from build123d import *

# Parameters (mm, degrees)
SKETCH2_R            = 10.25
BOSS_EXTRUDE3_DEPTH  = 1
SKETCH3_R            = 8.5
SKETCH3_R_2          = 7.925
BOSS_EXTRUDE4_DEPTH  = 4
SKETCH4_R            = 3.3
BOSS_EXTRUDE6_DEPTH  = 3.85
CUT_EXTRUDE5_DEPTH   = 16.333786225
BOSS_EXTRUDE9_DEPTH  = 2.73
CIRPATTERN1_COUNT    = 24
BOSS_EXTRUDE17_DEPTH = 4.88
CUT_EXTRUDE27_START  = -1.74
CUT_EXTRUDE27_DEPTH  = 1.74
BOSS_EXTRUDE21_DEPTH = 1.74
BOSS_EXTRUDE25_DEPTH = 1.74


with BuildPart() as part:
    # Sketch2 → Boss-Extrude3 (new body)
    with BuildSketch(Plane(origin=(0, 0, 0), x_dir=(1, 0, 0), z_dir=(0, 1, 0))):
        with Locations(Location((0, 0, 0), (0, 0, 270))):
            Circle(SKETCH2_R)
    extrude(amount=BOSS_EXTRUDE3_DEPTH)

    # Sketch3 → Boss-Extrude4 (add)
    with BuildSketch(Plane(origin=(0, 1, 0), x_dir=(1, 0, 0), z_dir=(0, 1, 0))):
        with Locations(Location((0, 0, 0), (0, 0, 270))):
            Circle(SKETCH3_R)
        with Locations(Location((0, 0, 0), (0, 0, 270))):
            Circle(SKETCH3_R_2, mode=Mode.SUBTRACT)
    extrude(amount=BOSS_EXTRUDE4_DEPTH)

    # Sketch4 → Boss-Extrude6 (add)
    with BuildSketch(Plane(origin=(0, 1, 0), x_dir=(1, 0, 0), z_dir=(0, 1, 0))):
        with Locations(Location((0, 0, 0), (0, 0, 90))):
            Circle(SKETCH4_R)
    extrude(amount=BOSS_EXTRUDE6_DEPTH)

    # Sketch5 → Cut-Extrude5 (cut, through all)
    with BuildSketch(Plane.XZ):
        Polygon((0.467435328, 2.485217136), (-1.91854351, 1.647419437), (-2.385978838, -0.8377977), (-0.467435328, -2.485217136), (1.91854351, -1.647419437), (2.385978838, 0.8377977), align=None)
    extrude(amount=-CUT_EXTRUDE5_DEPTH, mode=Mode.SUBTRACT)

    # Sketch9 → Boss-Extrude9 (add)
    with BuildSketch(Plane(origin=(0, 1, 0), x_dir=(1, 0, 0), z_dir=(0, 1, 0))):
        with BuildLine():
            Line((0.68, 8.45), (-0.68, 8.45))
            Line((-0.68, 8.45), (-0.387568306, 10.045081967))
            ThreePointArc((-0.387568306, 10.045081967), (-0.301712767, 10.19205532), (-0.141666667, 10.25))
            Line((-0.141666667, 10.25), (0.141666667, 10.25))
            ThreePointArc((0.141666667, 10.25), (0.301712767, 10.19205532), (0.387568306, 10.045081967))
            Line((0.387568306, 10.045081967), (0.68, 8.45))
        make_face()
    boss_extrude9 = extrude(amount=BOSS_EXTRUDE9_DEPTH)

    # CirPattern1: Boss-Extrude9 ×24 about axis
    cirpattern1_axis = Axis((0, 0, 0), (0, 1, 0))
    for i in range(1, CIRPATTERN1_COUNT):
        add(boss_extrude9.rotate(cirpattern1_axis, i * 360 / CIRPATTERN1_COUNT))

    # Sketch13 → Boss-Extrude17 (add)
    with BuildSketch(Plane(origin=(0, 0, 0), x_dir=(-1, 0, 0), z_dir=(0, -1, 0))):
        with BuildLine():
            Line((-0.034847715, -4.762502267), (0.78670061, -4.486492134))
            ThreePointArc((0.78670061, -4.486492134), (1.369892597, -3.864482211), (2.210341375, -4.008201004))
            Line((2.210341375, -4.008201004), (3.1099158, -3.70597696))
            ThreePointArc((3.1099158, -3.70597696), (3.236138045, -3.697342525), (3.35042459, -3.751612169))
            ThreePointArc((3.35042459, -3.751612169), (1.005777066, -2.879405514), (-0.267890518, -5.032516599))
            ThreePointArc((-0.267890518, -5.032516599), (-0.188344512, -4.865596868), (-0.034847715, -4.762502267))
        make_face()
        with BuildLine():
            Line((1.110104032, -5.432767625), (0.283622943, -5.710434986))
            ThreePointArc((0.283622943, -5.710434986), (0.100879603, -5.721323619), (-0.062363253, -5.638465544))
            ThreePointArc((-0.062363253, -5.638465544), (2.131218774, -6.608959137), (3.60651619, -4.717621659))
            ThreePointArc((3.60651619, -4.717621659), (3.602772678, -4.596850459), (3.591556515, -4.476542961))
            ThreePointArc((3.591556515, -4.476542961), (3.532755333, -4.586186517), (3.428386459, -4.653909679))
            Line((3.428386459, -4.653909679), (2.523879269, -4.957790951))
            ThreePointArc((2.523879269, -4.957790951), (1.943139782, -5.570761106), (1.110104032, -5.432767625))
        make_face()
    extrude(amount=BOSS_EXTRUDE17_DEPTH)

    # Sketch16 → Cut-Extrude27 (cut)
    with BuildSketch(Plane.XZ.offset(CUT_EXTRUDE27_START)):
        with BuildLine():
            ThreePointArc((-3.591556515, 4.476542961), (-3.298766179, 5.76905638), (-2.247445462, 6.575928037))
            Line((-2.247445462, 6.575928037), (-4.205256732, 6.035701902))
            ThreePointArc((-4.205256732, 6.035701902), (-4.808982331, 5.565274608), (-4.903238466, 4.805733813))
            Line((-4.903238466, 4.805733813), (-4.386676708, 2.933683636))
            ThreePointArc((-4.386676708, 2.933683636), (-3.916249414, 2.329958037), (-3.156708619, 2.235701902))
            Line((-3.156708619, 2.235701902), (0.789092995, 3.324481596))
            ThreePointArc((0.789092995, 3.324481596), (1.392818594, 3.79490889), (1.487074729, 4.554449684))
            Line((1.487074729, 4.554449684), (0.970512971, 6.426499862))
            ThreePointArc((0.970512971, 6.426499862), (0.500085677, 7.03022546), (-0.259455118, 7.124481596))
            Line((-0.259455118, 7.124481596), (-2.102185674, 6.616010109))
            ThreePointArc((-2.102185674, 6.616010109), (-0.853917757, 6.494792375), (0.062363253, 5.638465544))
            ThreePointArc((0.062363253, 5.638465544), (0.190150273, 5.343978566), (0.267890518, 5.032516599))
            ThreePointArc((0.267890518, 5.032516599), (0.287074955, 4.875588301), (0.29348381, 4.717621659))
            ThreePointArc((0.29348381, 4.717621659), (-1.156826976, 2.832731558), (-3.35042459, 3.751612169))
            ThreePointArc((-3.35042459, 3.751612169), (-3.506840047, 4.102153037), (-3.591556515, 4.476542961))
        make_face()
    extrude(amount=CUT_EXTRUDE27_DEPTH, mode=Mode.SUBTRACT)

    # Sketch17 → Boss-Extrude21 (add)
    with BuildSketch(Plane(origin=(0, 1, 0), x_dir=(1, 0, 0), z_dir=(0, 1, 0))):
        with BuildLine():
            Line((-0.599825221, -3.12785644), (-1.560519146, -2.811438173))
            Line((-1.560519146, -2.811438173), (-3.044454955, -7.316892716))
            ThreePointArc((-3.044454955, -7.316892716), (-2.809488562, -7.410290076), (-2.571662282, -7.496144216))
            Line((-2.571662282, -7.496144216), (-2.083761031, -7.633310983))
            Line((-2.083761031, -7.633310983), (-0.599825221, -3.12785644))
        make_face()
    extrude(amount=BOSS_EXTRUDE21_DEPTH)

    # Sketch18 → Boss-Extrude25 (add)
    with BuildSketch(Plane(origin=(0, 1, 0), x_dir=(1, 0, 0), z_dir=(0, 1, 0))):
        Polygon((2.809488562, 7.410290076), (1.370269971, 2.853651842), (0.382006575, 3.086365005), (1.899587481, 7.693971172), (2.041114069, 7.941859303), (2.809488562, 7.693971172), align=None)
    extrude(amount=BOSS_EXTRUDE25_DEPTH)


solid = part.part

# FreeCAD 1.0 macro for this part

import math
import FreeCAD as App
import Part
import Sketcher
Q = App.Units.Quantity


def add_polygon(sketch, points):
    """Adds a closed chain of lines whose ends are joined by coincident constraints."""
    first, n = sketch.GeometryCount, len(points)
    for a, b in zip(points, points[1:] + points[:1]):
        sketch.addGeometry(Part.LineSegment(App.Vector(*a, 0), App.Vector(*b, 0)), False)
    for i in range(n):
        sketch.addConstraint(Sketcher.Constraint("Coincident", first + i, 2, first + (i + 1) % n, 1))

doc = App.newDocument("Part")
body = doc.addObject("PartDesign::Body", "Body")

# Sketch on XZ plane
sketch1 = body.newObject("Sketcher::SketchObject", "Sketch")
sketch1.AttachmentSupport = (doc.getObject("XZ_Plane"), [""])
sketch1.MapMode = "FlatFace"
sketch1.addGeometry(Part.Circle(App.Vector(0, 0, 0), App.Vector(0, 0, 1), 10.25), False)
sketch1.addConstraint([
    Sketcher.Constraint("Coincident", 0, 3, -1, 1),
    Sketcher.Constraint("Diameter", 0, Q("20.5 mm")),
])
pad1 = body.newObject("PartDesign::Pad", "Pad")
pad1.Profile = sketch1
pad1.Length = 1
pad1.Reversed = True

# Sketch on XZ plane
sketch2 = body.newObject("Sketcher::SketchObject", "Sketch001")
sketch2.AttachmentSupport = (doc.getObject("XZ_Plane"), [""])
sketch2.MapMode = "FlatFace"
sketch2.AttachmentOffset = App.Placement(App.Vector(0, 0, -1), App.Rotation())
sketch2.addGeometry([
    Part.Circle(App.Vector(0, 0, 0), App.Vector(0, 0, 1), 8.5),
    Part.Circle(App.Vector(0, 0, 0), App.Vector(0, 0, 1), 7.925),
], False)
sketch2.addConstraint([
    Sketcher.Constraint("Coincident", 0, 3, -1, 1),
    Sketcher.Constraint("Coincident", 1, 3, -1, 1),
    Sketcher.Constraint("Diameter", 0, Q("17 mm")),
    Sketcher.Constraint("Diameter", 1, Q("15.85 mm")),
])
pad2 = body.newObject("PartDesign::Pad", "Pad001")
pad2.Profile = sketch2
pad2.Length = 4
pad2.Reversed = True

# Sketch on XZ plane
sketch3 = body.newObject("Sketcher::SketchObject", "Sketch002")
sketch3.AttachmentSupport = (doc.getObject("XZ_Plane"), [""])
sketch3.MapMode = "FlatFace"
sketch3.AttachmentOffset = App.Placement(App.Vector(0, 0, -1), App.Rotation())
sketch3.addGeometry(Part.Circle(App.Vector(0, 0, 0), App.Vector(0, 0, 1), 3.3), False)
sketch3.addConstraint([
    Sketcher.Constraint("Coincident", 0, 3, -1, 1),
    Sketcher.Constraint("Diameter", 0, Q("6.6 mm")),
])
pad3 = body.newObject("PartDesign::Pad", "Pad002")
pad3.Profile = sketch3
pad3.Length = 3.85
pad3.Reversed = True

# Sketch on XZ plane
sketch4 = body.newObject("Sketcher::SketchObject", "Sketch003")
sketch4.AttachmentSupport = (doc.getObject("XZ_Plane"), [""])
sketch4.MapMode = "FlatFace"
add_polygon(sketch4, [(0.467435, 2.485217), (-1.918544, 1.647419), (-2.385979, -0.837798), (-0.467435, -2.485217), (1.918544, -1.647419), (2.385979, 0.837798)])  # lines 0-5
sketch4.addConstraint([
    Sketcher.Constraint("Symmetric", 0, 2, 3, 2, -1, 1),
    Sketcher.Constraint("Symmetric", 1, 2, 4, 2, -1, 1),
    Sketcher.Constraint("Symmetric", 2, 2, 5, 2, -1, 1),
    Sketcher.Constraint("Equal", 0, 1),
    Sketcher.Constraint("Equal", 1, 2),
    Sketcher.Constraint("DistanceY", -1, 1, 0, 2, Q("1.647419 mm")),
    Sketcher.Constraint("DistanceX", 1, 2, -1, 1, Q("2.385979 mm")),
    Sketcher.Constraint("DistanceY", 2, 2, 1, 2, Q("1.647419 mm")),
    Sketcher.Constraint("DistanceX", 0, 2, 2, 2, Q("1.451108 mm")),
])
pocket1 = body.newObject("PartDesign::Pocket", "Pocket")
pocket1.Profile = sketch4
pocket1.Type = "ThroughAll"

# Sketch on XZ plane
sketch5 = body.newObject("Sketcher::SketchObject", "Sketch004")
sketch5.AttachmentSupport = (doc.getObject("XZ_Plane"), [""])
sketch5.MapMode = "FlatFace"
sketch5.AttachmentOffset = App.Placement(App.Vector(0, 0, -1), App.Rotation())
sketch5.addGeometry([
    Part.LineSegment(App.Vector(-0.68, -8.45, 0), App.Vector(0.68, -8.45, 0)),  # 0
    Part.LineSegment(App.Vector(0.68, -8.45, 0), App.Vector(0.387568, -10.045082, 0)),  # 1
    Part.ArcOfCircle(Part.Circle(App.Vector(0.141667, -10, 0), App.Vector(0, 0, 1), 0.25), math.radians(-90), math.radians(-10.388858)),  # 2
    Part.LineSegment(App.Vector(0.141667, -10.25, 0), App.Vector(-0.141667, -10.25, 0)),  # 3
    Part.ArcOfCircle(Part.Circle(App.Vector(-0.141667, -10, 0), App.Vector(0, 0, 1), 0.25), math.radians(-169.611142), math.radians(-90)),  # 4
    Part.LineSegment(App.Vector(-0.387568, -10.045082, 0), App.Vector(-0.68, -8.45, 0)),  # 5
], False)
sketch5.addConstraint([
    Sketcher.Constraint("Coincident", 0, 2, 1, 1),
    Sketcher.Constraint("Tangent", 1, 2, 2, 2),
    Sketcher.Constraint("Tangent", 2, 1, 3, 1),
    Sketcher.Constraint("Tangent", 3, 2, 4, 2),
    Sketcher.Constraint("Tangent", 4, 1, 5, 1),
    Sketcher.Constraint("Coincident", 5, 2, 0, 1),
    Sketcher.Constraint("Horizontal", 0),
    Sketcher.Constraint("Horizontal", 3),
    Sketcher.Constraint("Equal", 2, 4),
    Sketcher.Constraint("Symmetric", 1, 2, 4, 1, -2),
    Sketcher.Constraint("Radius", 2, Q("0.25 mm")),
    Sketcher.Constraint("DistanceY", 2, 3, -1, 1, Q("10 mm")),
    Sketcher.Constraint("DistanceX", 0, 1, 0, 2, Q("1.36 mm")),
    Sketcher.Constraint("DistanceY", 2, 1, 0, 2, Q("1.8 mm")),
    Sketcher.Constraint("DistanceX", 2, 3, 1, 2, Q("0.245902 mm")),
])
pad4 = body.newObject("PartDesign::Pad", "Pad003")
pad4.Profile = sketch5
pad4.Length = 2.73
pad4.Reversed = True
doc.recompute()

polarpattern = body.newObject("PartDesign::PolarPattern", "PolarPattern")
polarpattern.Originals = [pad4]
polarpattern.Axis = (doc.getObject("Y_Axis"), [""])
polarpattern.Angle = 360
polarpattern.Occurrences = 24
body.Tip = polarpattern

# Sketch on XZ plane
sketch6 = body.newObject("Sketcher::SketchObject", "Sketch005")
sketch6.AttachmentSupport = (doc.getObject("XZ_Plane"), [""])
sketch6.MapMode = "FlatFace"
sketch6.addGeometry([
    Part.LineSegment(App.Vector(0.034848, 4.762502, 0), App.Vector(-0.786701, 4.486492, 0)),  # 0
    Part.ArcOfCircle(Part.Circle(App.Vector(-1.656516, 4.717622, 0), App.Vector(0, 0, 1), 0.9), math.radians(-127.978179), math.radians(-14.880897)),  # 1
    Part.LineSegment(App.Vector(-2.210341, 4.008201, 0), App.Vector(-3.109916, 3.705977, 0)),  # 2
    Part.ArcOfCircle(Part.Circle(App.Vector(-3.189533, 3.94296, 0), App.Vector(0, 0, 1), 0.25), math.radians(-130.058131), math.radians(-71.429539)),  # 3
    Part.ArcOfCircle(Part.Circle(App.Vector(-1.656516, 4.717622, 0), App.Vector(0, 0, 1), 1.95), math.radians(-150.304564), math.radians(9.293077)),  # 4
    Part.ArcOfCircle(Part.Circle(App.Vector(-0.076617, 5.094279, 0), App.Vector(0, 0, 1), 0.35), math.radians(-71.429538), math.radians(-10.163819)),  # 5
    Part.LineSegment(App.Vector(-1.110104, 5.432768, 0), App.Vector(-0.283623, 5.710435, 0)),  # 6
    Part.ArcOfCircle(Part.Circle(App.Vector(-0.172158, 5.378659, 0), App.Vector(0, 0, 1), 0.35), math.radians(47.928201), math.radians(108.570462)),  # 7
    Part.ArcOfCircle(Part.Circle(App.Vector(-1.656516, 4.717622, 0), App.Vector(0, 0, 1), 1.95), math.radians(28.178994), math.radians(180)),  # 8
    Part.ArcOfCircle(Part.Circle(App.Vector(-1.656516, 4.717622, 0), App.Vector(0, 0, 1), 1.95), math.radians(180), math.radians(187.101653)),  # 9
    Part.ArcOfCircle(Part.Circle(App.Vector(-3.348769, 4.416927, 0), App.Vector(0, 0, 1), 0.25), math.radians(108.570462), math.radians(166.203989)),  # 10
    Part.LineSegment(App.Vector(-3.428386, 4.65391, 0), App.Vector(-2.523879, 4.957791, 0)),  # 11
    Part.ArcOfCircle(Part.Circle(App.Vector(-1.656516, 4.717622, 0), App.Vector(0, 0, 1), 0.9), math.radians(52.618117), math.radians(164.522807)),  # 12
], False)
sketch6.addConstraint([
    Sketcher.Constraint("Coincident", 0, 2, 1, 2),
    Sketcher.Constraint("Coincident", 1, 1, 2, 1),
    Sketcher.Constraint("Tangent", 2, 2, 3, 2),
    Sketcher.Constraint("Coincident", 3, 1, 4, 1),
    Sketcher.Constraint("Coincident", 4, 2, 5, 2),
    Sketcher.Constraint("Tangent", 5, 1, 0, 1),
    Sketcher.Constraint("Tangent", 6, 2, 7, 2),
    Sketcher.Constraint("Coincident", 7, 1, 8, 1),
    Sketcher.Constraint("Tangent", 8, 2, 9, 1),
    Sketcher.Constraint("Coincident", 9, 2, 10, 2),
    Sketcher.Constraint("Tangent", 10, 1, 11, 1),
    Sketcher.Constraint("Coincident", 11, 2, 12, 2),
    Sketcher.Constraint("Coincident", 12, 1, 6, 1),
    Sketcher.Constraint("Coincident", 4, 3, 1, 3),
    Sketcher.Constraint("Coincident", 8, 3, 1, 3),
    Sketcher.Constraint("Coincident", 12, 3, 1, 3),
    Sketcher.Constraint("Equal", 5, 7),
    Sketcher.Constraint("Equal", 4, 8),
    Sketcher.Constraint("Equal", 8, 9),
    Sketcher.Constraint("Equal", 3, 10),
    Sketcher.Constraint("Equal", 1, 12),
    Sketcher.Constraint("Parallel", 0, 2),
    Sketcher.Constraint("Parallel", 2, 6),
    Sketcher.Constraint("Parallel", 6, 11),
    Sketcher.Constraint("Horizontal", 12, 3, 8, 2),
    Sketcher.Constraint("Radius", 1, Q("0.9 mm")),
    Sketcher.Constraint("Radius", 3, Q("0.25 mm")),
    Sketcher.Constraint("Radius", 4, Q("1.95 mm")),
    Sketcher.Constraint("Radius", 5, Q("0.35 mm")),
    Sketcher.Constraint("DistanceX", 0, 2, -1, 1, Q("0.786701 mm")),
    Sketcher.Constraint("DistanceY", -1, 1, 1, 1, Q("4.008201 mm")),
    Sketcher.Constraint("DistanceX", 1, 3, 5, 3, Q("1.579899 mm")),
    Sketcher.Constraint("DistanceY", 3, 3, 7, 3, Q("1.435698 mm")),
    Sketcher.Constraint("DistanceX", 2, 2, 9, 3, Q("1.453399 mm")),
    Sketcher.Constraint("Distance", 11, Q("0.954189 mm")),
    Sketcher.Constraint("DistanceY", -1, 1, 1, 3, Q("4.717622 mm")),
    Sketcher.Constraint("DistanceY", -1, 1, 3, 3, Q("3.94296 mm")),
    Sketcher.Constraint("DistanceY", -1, 1, 5, 3, Q("5.094279 mm")),
    Sketcher.Constraint("DistanceX", 7, 3, -1, 1, Q("0.172158 mm")),
    Sketcher.Constraint("DistanceX", 10, 3, -1, 1, Q("3.348769 mm")),
])
pad5 = body.newObject("PartDesign::Pad", "Pad004")
pad5.Profile = sketch6
pad5.Length = 4.88

# Sketch on XZ plane
sketch7 = body.newObject("Sketcher::SketchObject", "Sketch006")
sketch7.AttachmentSupport = (doc.getObject("XZ_Plane"), [""])
sketch7.MapMode = "FlatFace"
sketch7.AttachmentOffset = App.Placement(App.Vector(0, 0, -1.74), App.Rotation())
sketch7.addGeometry([
    Part.ArcOfCircle(Part.Circle(App.Vector(-1.656516, 4.717622, 0), App.Vector(0, 0, 1), 1.95), math.radians(107.640324), math.radians(187.101653)),  # 0
    Part.LineSegment(App.Vector(-2.247445, 6.575928, 0), App.Vector(-4.205257, 6.035702, 0)),  # 1
    Part.ArcOfCircle(Part.Circle(App.Vector(-3.939264, 5.071727, 0), App.Vector(0, 0, 1), 1), math.radians(105.425976), math.radians(195.425976)),  # 2
    Part.LineSegment(App.Vector(-4.903238, 4.805734, 0), App.Vector(-4.386677, 2.933684, 0)),  # 3
    Part.ArcOfCircle(Part.Circle(App.Vector(-3.422702, 3.199677, 0), App.Vector(0, 0, 1), 1), math.radians(-164.574024), math.radians(-74.574024)),  # 4
    Part.LineSegment(App.Vector(-3.156709, 2.235702, 0), App.Vector(0.789093, 3.324482, 0)),  # 5
    Part.ArcOfCircle(Part.Circle(App.Vector(0.5231, 4.288457, 0), App.Vector(0, 0, 1), 1), math.radians(-74.574024), math.radians(15.425976)),  # 6
    Part.LineSegment(App.Vector(1.487075, 4.55445, 0), App.Vector(0.970513, 6.4265, 0)),  # 7
    Part.ArcOfCircle(Part.Circle(App.Vector(0.006538, 6.160507, 0), App.Vector(0, 0, 1), 1), math.radians(15.425976), math.radians(105.425976)),  # 8
    Part.LineSegment(App.Vector(-0.259455, 7.124482, 0), App.Vector(-2.102186, 6.61601, 0)),  # 9
    Part.ArcOfCircle(Part.Circle(App.Vector(-1.656516, 4.717622, 0), App.Vector(0, 0, 1), 1.95), math.radians(28.178994), math.radians(103.211628)),  # 10
    Part.ArcOfCircle(Part.Circle(App.Vector(-1.656516, 4.717622, 0), App.Vector(0, 0, 1), 1.95), math.radians(9.293077), math.radians(28.178994)),  # 11
    Part.ArcOfCircle(Part.Circle(App.Vector(-1.656516, 4.717622, 0), App.Vector(0, 0, 1), 1.95), math.radians(0), math.radians(9.293077)),  # 12
    Part.ArcOfCircle(Part.Circle(App.Vector(-1.656516, 4.717622, 0), App.Vector(0, 0, 1), 1.95), math.radians(-150.304564), math.radians(0)),  # 13
    Part.ArcOfCircle(Part.Circle(App.Vector(-1.656516, 4.717622, 0), App.Vector(0, 0, 1), 1.95), math.radians(-172.898347), math.radians(-150.304564)),  # 14
], False)
sketch7.addConstraint([
    Sketcher.Constraint("Coincident", 0, 1, 1, 1),
    Sketcher.Constraint("Tangent", 1, 2, 2, 1),
    Sketcher.Constraint("Tangent", 2, 2, 3, 1),
    Sketcher.Constraint("Tangent", 3, 2, 4, 1),
    Sketcher.Constraint("Tangent", 4, 2, 5, 1),
    Sketcher.Constraint("Tangent", 5, 2, 6, 1),
    Sketcher.Constraint("Tangent", 6, 2, 7, 1),
    Sketcher.Constraint("Tangent", 7, 2, 8, 1),
    Sketcher.Constraint("Tangent", 8, 2, 9, 1),
    Sketcher.Constraint("Coincident", 9, 2, 10, 2),
    Sketcher.Constraint("Tangent", 10, 1, 11, 2),
    Sketcher.Constraint("Tangent", 11, 1, 12, 2),
    Sketcher.Constraint("Tangent", 12, 1, 13, 2),
    Sketcher.Constraint("Tangent", 13, 1, 14, 2),
    Sketcher.Constraint("Tangent", 14, 1, 0, 2),
    Sketcher.Constraint("Coincident", 10, 3, 0, 3),
    Sketcher.Constraint("Coincident", 12, 3, 0, 3),
    Sketcher.Constraint("Equal", 2, 4),
    Sketcher.Constraint("Equal", 4, 6),
    Sketcher.Constraint("Equal", 6, 8),
    Sketcher.Constraint("Equal", 0, 10),
    Sketcher.Constraint("Perpendicular", 1, 3),
    Sketcher.Constraint("Perpendicular", 3, 5),
    Sketcher.Constraint("Perpendicular", 5, 7),
    Sketcher.Constraint("Perpendicular", 7, 9),
    Sketcher.Constraint("Horizontal", 14, 3, 12, 1),
    Sketcher.Constraint("Equal", 3, 7),
    Sketcher.Constraint("Radius", 2, Q("1 mm")),
    Sketcher.Constraint("Radius", 0, Q("1.95 mm")),
    Sketcher.Constraint("DistanceX", 4, 3, -1, 1, Q("3.422702 mm")),
    Sketcher.Constraint("DistanceX", -1, 1, 6, 3, Q("0.5231 mm")),
    Sketcher.Constraint("DistanceY", -1, 1, 1, 2, Q("6.035702 mm")),
    Sketcher.Constraint("DistanceY", -1, 1, 4, 2, Q("2.235702 mm")),
    Sketcher.Constraint("DistanceY", -1, 1, 7, 2, Q("6.4265 mm")),
    Sketcher.Constraint("DistanceX", 1, 2, 14, 1, Q("0.6137 mm")),
    Sketcher.Constraint("DistanceY", -1, 1, 0, 3, Q("4.717622 mm")),
    Sketcher.Constraint("DistanceY", -1, 1, 0, 1, Q("6.575928 mm")),
    Sketcher.Constraint("DistanceX", -1, 1, 11, 1, Q("0.267891 mm")),
    Sketcher.Constraint("DistanceY", 10, 1, 8, 3, Q("0.522041 mm")),
    Sketcher.Constraint("DistanceY", 3, 2, 13, 1, Q("0.817929 mm")),
])
pocket2 = body.newObject("PartDesign::Pocket", "Pocket001")
pocket2.Profile = sketch7
pocket2.Length = 1.74
pocket2.Reversed = True

# Sketch on XZ plane
sketch8 = body.newObject("Sketcher::SketchObject", "Sketch007")
sketch8.AttachmentSupport = (doc.getObject("XZ_Plane"), [""])
sketch8.MapMode = "FlatFace"
sketch8.AttachmentOffset = App.Placement(App.Vector(0, 0, -1), App.Rotation())
sketch8.addGeometry([
    Part.LineSegment(App.Vector(-0.599825, 3.127856, 0), App.Vector(-1.560519, 2.811438, 0)),  # 0
    Part.LineSegment(App.Vector(-1.560519, 2.811438, 0), App.Vector(-3.044455, 7.316893, 0)),  # 1
    Part.ArcOfCircle(Part.Circle(App.Vector(0, -0.000001, 0), App.Vector(0, 0, 1), 7.925001), math.radians(108.935284), math.radians(112.5915)),  # 2
    Part.LineSegment(App.Vector(-2.571662, 7.496144, 0), App.Vector(-2.083761, 7.633311, 0)),  # 3
    Part.LineSegment(App.Vector(-2.083761, 7.633311, 0), App.Vector(-0.599825, 3.127856, 0)),  # 4
], False)
sketch8.addConstraint([
    Sketcher.Constraint("Coincident", 0, 2, 1, 1),
    Sketcher.Constraint("Coincident", 1, 2, 2, 2),
    Sketcher.Constraint("Coincident", 2, 1, 3, 1),
    Sketcher.Constraint("Coincident", 3, 2, 4, 1),
    Sketcher.Constraint("Coincident", 4, 2, 0, 1),
    Sketcher.Constraint("Coincident", 2, 3, -1, 1),
    Sketcher.Constraint("Perpendicular", 0, 1),
    Sketcher.Constraint("Parallel", 1, 4),
    Sketcher.Constraint("Equal", 1, 4),
    Sketcher.Constraint("Radius", 2, Q("7.925001 mm")),
    Sketcher.Constraint("DistanceX", 2, 1, 3, 2, Q("0.487901 mm")),
    Sketcher.Constraint("Distance", 0, Q("1.011461 mm")),
    Sketcher.Constraint("Distance", 1, Q("4.743542 mm")),
    Sketcher.Constraint("DistanceX", 0, 2, -1, 1, Q("1.560519 mm")),
    Sketcher.Constraint("DistanceY", -1, 1, 0, 2, Q("2.811438 mm")),
])
pad6 = body.newObject("PartDesign::Pad", "Pad005")
pad6.Profile = sketch8
pad6.Length = 1.74
pad6.Reversed = True

# Sketch on XZ plane
sketch9 = body.newObject("Sketcher::SketchObject", "Sketch008")
sketch9.AttachmentSupport = (doc.getObject("XZ_Plane"), [""])
sketch9.MapMode = "FlatFace"
sketch9.AttachmentOffset = App.Placement(App.Vector(0, 0, -1), App.Rotation())
add_polygon(sketch9, [(1.37027, -2.853652), (2.809489, -7.41029), (2.809489, -7.693971), (2.041114, -7.941859), (1.899587, -7.693971), (0.382007, -3.086365)])  # lines 0-5
sketch9.addConstraint([
    Sketcher.Constraint("Vertical", 1),
    Sketcher.Constraint("Horizontal", 1, 2, 3, 2),
    Sketcher.Constraint("DistanceY", 1, 2, 1, 1, Q("0.283681 mm")),
    Sketcher.Constraint("DistanceX", 3, 2, 1, 2, Q("0.909901 mm")),
    Sketcher.Constraint("Distance", 2, Q("0.807371 mm")),
    Sketcher.Constraint("Distance", 4, Q("4.851091 mm")),
    Sketcher.Constraint("DistanceX", -1, 1, 0, 2, Q("2.809489 mm")),
    Sketcher.Constraint("DistanceY", 0, 2, -1, 1, Q("7.41029 mm")),
    Sketcher.Constraint("DistanceY", 2, 2, -1, 1, Q("7.941859 mm")),
    Sketcher.Constraint("DistanceX", -1, 1, 5, 2, Q("1.37027 mm")),
    Sketcher.Constraint("DistanceY", 5, 2, -1, 1, Q("2.853652 mm")),
    Sketcher.Constraint("DistanceX", 4, 2, 3, 2, Q("1.517581 mm")),
])
pad7 = body.newObject("PartDesign::Pad", "Pad006")
pad7.Profile = sketch9
pad7.Length = 1.74
pad7.Reversed = True

doc.recompute()
